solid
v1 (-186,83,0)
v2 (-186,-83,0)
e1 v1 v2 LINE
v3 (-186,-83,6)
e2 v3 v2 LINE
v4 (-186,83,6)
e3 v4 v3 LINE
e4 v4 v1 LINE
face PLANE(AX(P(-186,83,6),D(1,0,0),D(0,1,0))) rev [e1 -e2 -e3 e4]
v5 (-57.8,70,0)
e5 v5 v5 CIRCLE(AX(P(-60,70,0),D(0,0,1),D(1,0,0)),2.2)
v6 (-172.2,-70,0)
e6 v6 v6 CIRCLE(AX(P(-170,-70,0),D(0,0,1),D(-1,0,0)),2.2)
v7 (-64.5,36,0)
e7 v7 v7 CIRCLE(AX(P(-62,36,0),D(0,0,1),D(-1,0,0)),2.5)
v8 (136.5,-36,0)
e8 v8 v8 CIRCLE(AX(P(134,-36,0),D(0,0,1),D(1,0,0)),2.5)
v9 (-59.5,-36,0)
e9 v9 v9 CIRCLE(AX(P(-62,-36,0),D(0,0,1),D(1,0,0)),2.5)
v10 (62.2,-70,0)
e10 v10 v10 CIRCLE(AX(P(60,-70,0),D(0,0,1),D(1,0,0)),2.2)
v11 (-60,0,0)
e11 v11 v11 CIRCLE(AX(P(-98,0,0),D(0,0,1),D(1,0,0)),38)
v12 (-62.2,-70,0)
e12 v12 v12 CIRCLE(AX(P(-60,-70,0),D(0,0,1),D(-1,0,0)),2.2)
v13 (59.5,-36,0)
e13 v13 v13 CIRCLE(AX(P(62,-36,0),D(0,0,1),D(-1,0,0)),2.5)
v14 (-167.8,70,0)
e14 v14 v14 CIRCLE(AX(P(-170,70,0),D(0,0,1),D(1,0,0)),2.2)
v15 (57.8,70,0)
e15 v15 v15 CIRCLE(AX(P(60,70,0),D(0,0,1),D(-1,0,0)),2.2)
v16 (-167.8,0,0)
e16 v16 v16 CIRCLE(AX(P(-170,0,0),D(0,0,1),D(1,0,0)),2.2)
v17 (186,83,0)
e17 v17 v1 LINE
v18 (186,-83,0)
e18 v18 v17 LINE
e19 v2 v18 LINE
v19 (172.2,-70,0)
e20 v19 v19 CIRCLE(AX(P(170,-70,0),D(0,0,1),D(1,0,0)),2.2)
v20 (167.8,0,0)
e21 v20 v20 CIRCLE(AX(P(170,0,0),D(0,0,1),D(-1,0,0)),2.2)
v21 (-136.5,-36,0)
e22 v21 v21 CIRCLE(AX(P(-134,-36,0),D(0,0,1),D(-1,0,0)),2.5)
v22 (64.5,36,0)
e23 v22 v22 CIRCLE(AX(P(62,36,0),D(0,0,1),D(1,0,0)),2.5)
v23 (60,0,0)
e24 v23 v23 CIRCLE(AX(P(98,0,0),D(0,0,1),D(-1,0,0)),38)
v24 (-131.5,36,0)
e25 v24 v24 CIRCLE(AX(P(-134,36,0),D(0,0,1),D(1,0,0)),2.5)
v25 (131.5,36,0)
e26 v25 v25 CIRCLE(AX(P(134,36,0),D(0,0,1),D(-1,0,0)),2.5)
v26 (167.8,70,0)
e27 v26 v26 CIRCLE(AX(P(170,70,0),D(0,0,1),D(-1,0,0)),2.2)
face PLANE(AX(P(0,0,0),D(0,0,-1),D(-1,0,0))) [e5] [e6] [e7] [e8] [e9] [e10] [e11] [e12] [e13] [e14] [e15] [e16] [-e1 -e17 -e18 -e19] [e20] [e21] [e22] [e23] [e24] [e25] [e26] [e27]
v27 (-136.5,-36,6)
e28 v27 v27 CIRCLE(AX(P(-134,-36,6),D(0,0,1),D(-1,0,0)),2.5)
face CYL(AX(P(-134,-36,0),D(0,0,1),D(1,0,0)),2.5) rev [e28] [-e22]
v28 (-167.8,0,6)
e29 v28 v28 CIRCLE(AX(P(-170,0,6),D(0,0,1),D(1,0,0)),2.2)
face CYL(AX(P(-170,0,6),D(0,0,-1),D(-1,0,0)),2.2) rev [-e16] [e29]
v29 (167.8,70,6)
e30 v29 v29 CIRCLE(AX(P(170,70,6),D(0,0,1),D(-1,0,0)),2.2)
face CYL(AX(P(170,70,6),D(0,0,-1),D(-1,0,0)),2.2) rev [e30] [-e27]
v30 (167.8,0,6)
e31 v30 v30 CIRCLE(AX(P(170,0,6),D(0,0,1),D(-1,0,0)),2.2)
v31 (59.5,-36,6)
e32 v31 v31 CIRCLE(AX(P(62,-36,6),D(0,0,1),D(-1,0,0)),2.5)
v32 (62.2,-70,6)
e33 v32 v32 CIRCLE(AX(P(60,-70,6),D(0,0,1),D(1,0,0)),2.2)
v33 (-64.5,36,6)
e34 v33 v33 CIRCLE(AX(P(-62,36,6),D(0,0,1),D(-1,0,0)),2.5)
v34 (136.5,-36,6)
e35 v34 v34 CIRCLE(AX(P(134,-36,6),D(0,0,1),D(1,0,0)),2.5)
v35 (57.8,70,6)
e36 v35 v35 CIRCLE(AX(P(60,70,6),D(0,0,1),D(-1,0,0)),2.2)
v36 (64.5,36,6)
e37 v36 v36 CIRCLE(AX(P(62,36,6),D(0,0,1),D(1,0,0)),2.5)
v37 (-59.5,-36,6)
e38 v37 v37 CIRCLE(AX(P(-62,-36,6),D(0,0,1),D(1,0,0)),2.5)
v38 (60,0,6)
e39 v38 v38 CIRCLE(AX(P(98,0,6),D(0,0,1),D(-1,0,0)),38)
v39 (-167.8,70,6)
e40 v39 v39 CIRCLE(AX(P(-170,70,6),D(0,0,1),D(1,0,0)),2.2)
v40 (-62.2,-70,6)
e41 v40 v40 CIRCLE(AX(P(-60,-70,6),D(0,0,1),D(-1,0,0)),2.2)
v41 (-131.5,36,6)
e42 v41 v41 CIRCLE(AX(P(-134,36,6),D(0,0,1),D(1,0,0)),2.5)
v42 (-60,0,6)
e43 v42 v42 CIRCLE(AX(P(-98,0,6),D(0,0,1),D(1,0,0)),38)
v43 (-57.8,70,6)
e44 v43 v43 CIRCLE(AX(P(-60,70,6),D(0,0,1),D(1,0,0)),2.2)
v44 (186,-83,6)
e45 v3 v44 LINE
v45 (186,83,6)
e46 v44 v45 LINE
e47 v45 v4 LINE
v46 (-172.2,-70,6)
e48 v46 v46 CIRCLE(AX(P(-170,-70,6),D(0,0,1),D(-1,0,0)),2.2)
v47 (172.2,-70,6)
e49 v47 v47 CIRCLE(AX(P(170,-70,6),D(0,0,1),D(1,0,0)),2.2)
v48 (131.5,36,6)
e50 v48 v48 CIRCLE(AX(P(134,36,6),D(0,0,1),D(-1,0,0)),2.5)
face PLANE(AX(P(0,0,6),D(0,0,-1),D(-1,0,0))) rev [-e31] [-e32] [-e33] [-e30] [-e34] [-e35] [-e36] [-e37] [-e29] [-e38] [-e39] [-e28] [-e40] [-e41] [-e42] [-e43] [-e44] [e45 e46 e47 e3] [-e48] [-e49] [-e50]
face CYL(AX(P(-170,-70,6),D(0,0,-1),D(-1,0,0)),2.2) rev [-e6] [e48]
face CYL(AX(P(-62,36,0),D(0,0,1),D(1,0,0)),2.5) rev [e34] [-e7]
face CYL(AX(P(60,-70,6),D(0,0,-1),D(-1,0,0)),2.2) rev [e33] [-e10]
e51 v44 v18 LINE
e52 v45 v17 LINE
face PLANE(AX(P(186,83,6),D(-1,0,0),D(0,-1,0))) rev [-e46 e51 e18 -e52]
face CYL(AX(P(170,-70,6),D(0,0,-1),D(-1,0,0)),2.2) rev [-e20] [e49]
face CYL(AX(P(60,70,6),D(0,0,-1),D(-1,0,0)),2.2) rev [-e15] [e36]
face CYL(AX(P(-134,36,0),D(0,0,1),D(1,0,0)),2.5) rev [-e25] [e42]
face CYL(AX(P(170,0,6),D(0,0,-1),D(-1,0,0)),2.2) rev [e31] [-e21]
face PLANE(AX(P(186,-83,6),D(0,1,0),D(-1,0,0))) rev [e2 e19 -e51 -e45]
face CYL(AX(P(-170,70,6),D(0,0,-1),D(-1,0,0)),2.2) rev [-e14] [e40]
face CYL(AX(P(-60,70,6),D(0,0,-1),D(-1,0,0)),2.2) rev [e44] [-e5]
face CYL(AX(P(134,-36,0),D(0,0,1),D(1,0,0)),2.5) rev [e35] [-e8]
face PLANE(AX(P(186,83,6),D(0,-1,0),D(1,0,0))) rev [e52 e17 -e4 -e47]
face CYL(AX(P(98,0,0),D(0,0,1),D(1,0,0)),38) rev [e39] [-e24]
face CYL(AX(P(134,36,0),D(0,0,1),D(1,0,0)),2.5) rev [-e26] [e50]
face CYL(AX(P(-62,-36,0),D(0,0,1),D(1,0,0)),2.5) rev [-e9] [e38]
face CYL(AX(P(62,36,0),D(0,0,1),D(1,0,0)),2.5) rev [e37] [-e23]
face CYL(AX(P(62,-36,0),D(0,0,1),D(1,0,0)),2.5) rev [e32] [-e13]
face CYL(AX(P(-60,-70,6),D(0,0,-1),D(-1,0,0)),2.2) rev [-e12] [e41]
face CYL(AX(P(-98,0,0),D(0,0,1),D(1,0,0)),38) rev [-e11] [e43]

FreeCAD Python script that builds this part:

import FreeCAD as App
import Part
import Sketcher

doc = App.newDocument("Part")
body = doc.addObject("PartDesign::Body", "Body")

sketch1 = doc.addObject("Sketcher::SketchObject", "Sketch")
body.addObject(sketch1)
sketch1.AttachmentSupport = (doc.XY_Plane, [""])
sketch1.MapMode = "FlatFace"
sketch1.addGeometry([
    Part.LineSegment(App.Vector(-186, 83, 0), App.Vector(-186, -83, 0)),
    Part.LineSegment(App.Vector(-186, -83, 0), App.Vector(186, -83, 0)),
    Part.LineSegment(App.Vector(186, -83, 0), App.Vector(186, 83, 0)),
    Part.LineSegment(App.Vector(186, 83, 0), App.Vector(-186, 83, 0)),
    Part.Circle(App.Vector(-170, -70, 0), App.Vector(0, 0, 1), 2.2),
    Part.Circle(App.Vector(-60, -70, 0), App.Vector(0, 0, 1), 2.2),
    Part.Circle(App.Vector(60, -70, 0), App.Vector(0, 0, 1), 2.2),
    Part.Circle(App.Vector(170, -70, 0), App.Vector(0, 0, 1), 2.2),
    Part.Circle(App.Vector(-170, 0, 0), App.Vector(0, 0, 1), 2.2),
    Part.Circle(App.Vector(-170, 70, 0), App.Vector(0, 0, 1), 2.2),
    Part.Circle(App.Vector(-60, 70, 0), App.Vector(0, 0, 1), 2.2),
    Part.Circle(App.Vector(170, 0, 0), App.Vector(0, 0, 1), 2.2),
    Part.Circle(App.Vector(60, 70, 0), App.Vector(0, 0, 1), 2.2),
    Part.Circle(App.Vector(170, 70, 0), App.Vector(0, 0, 1), 2.2),
], False)
sketch1.addConstraint([
    Sketcher.Constraint("Coincident", 0, 2, 1, 1),
    Sketcher.Constraint("Coincident", 1, 2, 2, 1),
    Sketcher.Constraint("Coincident", 2, 2, 3, 1),
    Sketcher.Constraint("Coincident", 3, 2, 0, 1),
    Sketcher.Constraint("Vertical", 0),
    Sketcher.Constraint("Horizontal", 1),
    Sketcher.Constraint("Vertical", 2),
    Sketcher.Constraint("Horizontal", 3),
    Sketcher.Constraint("Equal", 4, 5),
    Sketcher.Constraint("Equal", 5, 6),
    Sketcher.Constraint("Equal", 6, 7),
    Sketcher.Constraint("Equal", 7, 8),
    Sketcher.Constraint("Equal", 8, 9),
    Sketcher.Constraint("Equal", 9, 10),
    Sketcher.Constraint("Equal", 10, 11),
    Sketcher.Constraint("Equal", 11, 12),
    Sketcher.Constraint("Equal", 12, 13),
    Sketcher.Constraint("Symmetric", 7, 3, 9, 3, -1, 1),
    Sketcher.Constraint("Symmetric", 6, 3, 10, 3, -1, 1),
    Sketcher.Constraint("Symmetric", 8, 3, 11, 3, -1, 1),
    Sketcher.Constraint("Symmetric", 5, 3, 12, 3, -1, 1),
    Sketcher.Constraint("Symmetric", 4, 3, 13, 3, -1, 1),
    Sketcher.Constraint("Symmetric", 0, 2, 2, 2, -1, 1),
    Sketcher.Constraint("Symmetric", 5, 3, 6, 3, -2),
    Sketcher.Constraint("Symmetric", 4, 3, 7, 3, -2),
    Sketcher.Constraint("PointOnObject", 8, 3, -1),
    Sketcher.Constraint("Horizontal", 4, 3, 5, 3),
    Sketcher.Constraint("Vertical", 4, 3, 8, 3),
    Sketcher.Constraint("Diameter", 4, 4.4),
    Sketcher.Constraint("DistanceX", 1, 1, 1, 2, 372.0),
    Sketcher.Constraint("DistanceY", 0, 2, 0, 1, 166.0),
    Sketcher.Constraint("DistanceX", 4, 3, -1, 1, 170.0),
    Sketcher.Constraint("DistanceY", 4, 3, -1, 1, 70.0),
    Sketcher.Constraint("DistanceX", 5, 3, -1, 1, 60.0),
])
pad1 = doc.addObject("PartDesign::Pad", "Pad")
body.addObject(pad1)
pad1.Profile = sketch1
pad1.Length = 6

sketch2 = doc.addObject("Sketcher::SketchObject", "Sketch001")
body.addObject(sketch2)
sketch2.AttachmentSupport = (doc.XY_Plane, [""])
sketch2.MapMode = "FlatFace"
sketch2.AttachmentOffset = App.Placement(App.Vector(0, 0, 6), App.Rotation())
sketch2.addGeometry([
    Part.Circle(App.Vector(-98, 0, 0), App.Vector(0, 0, 1), 38),
    Part.Circle(App.Vector(-134, 36, 0), App.Vector(0, 0, 1), 2.5),
    Part.Circle(App.Vector(-134, -36, 0), App.Vector(0, 0, 1), 2.5),
    Part.Circle(App.Vector(-62, -36, 0), App.Vector(0, 0, 1), 2.5),
    Part.Circle(App.Vector(-62, 36, 0), App.Vector(0, 0, 1), 2.5),
    Part.Circle(App.Vector(62, 36, 0), App.Vector(0, 0, 1), 2.5),
    Part.Circle(App.Vector(62, -36, 0), App.Vector(0, 0, 1), 2.5),
    Part.Circle(App.Vector(134, -36, 0), App.Vector(0, 0, 1), 2.5),
    Part.Circle(App.Vector(134, 36, 0), App.Vector(0, 0, 1), 2.5),
    Part.Circle(App.Vector(98, 0, 0), App.Vector(0, 0, 1), 38),
], False)
sketch2.addConstraint([
    Sketcher.Constraint("Equal", 1, 2),
    Sketcher.Constraint("Equal", 2, 3),
    Sketcher.Constraint("Equal", 3, 4),
    Sketcher.Constraint("Equal", 4, 5),
    Sketcher.Constraint("Equal", 5, 6),
    Sketcher.Constraint("Equal", 6, 7),
    Sketcher.Constraint("Equal", 7, 8),
    Sketcher.Constraint("Equal", 0, 9),
    Sketcher.Constraint("Symmetric", 3, 3, 5, 3, -1, 1),
    Sketcher.Constraint("Symmetric", 4, 3, 6, 3, -1, 1),
    Sketcher.Constraint("Symmetric", 1, 3, 7, 3, -1, 1),
    Sketcher.Constraint("Symmetric", 2, 3, 8, 3, -1, 1),
    Sketcher.Constraint("Symmetric", 0, 3, 9, 3, -1, 1),
    Sketcher.Constraint("Symmetric", 4, 3, 5, 3, -2),
    Sketcher.Constraint("Symmetric", 2, 3, 7, 3, -2),
    Sketcher.Constraint("PointOnObject", 0, 3, -1),
    Sketcher.Constraint("Horizontal", 2, 3, 3, 3),
    Sketcher.Constraint("Diameter", 0, 76.0),
    Sketcher.Constraint("Diameter", 1, 5.0),
    Sketcher.Constraint("DistanceX", 0, 3, -1, 1, 98.0),
    Sketcher.Constraint("DistanceX", 1, 3, -1, 1, 134.0),
    Sketcher.Constraint("DistanceY", -1, 1, 1, 3, 36.0),
    Sketcher.Constraint("DistanceX", 3, 3, -1, 1, 62.0),
])
pocket1 = doc.addObject("PartDesign::Pocket", "Pocket")
body.addObject(pocket1)
pocket1.Profile = sketch2
pocket1.Type = "ThroughAll"

doc.recompute()
